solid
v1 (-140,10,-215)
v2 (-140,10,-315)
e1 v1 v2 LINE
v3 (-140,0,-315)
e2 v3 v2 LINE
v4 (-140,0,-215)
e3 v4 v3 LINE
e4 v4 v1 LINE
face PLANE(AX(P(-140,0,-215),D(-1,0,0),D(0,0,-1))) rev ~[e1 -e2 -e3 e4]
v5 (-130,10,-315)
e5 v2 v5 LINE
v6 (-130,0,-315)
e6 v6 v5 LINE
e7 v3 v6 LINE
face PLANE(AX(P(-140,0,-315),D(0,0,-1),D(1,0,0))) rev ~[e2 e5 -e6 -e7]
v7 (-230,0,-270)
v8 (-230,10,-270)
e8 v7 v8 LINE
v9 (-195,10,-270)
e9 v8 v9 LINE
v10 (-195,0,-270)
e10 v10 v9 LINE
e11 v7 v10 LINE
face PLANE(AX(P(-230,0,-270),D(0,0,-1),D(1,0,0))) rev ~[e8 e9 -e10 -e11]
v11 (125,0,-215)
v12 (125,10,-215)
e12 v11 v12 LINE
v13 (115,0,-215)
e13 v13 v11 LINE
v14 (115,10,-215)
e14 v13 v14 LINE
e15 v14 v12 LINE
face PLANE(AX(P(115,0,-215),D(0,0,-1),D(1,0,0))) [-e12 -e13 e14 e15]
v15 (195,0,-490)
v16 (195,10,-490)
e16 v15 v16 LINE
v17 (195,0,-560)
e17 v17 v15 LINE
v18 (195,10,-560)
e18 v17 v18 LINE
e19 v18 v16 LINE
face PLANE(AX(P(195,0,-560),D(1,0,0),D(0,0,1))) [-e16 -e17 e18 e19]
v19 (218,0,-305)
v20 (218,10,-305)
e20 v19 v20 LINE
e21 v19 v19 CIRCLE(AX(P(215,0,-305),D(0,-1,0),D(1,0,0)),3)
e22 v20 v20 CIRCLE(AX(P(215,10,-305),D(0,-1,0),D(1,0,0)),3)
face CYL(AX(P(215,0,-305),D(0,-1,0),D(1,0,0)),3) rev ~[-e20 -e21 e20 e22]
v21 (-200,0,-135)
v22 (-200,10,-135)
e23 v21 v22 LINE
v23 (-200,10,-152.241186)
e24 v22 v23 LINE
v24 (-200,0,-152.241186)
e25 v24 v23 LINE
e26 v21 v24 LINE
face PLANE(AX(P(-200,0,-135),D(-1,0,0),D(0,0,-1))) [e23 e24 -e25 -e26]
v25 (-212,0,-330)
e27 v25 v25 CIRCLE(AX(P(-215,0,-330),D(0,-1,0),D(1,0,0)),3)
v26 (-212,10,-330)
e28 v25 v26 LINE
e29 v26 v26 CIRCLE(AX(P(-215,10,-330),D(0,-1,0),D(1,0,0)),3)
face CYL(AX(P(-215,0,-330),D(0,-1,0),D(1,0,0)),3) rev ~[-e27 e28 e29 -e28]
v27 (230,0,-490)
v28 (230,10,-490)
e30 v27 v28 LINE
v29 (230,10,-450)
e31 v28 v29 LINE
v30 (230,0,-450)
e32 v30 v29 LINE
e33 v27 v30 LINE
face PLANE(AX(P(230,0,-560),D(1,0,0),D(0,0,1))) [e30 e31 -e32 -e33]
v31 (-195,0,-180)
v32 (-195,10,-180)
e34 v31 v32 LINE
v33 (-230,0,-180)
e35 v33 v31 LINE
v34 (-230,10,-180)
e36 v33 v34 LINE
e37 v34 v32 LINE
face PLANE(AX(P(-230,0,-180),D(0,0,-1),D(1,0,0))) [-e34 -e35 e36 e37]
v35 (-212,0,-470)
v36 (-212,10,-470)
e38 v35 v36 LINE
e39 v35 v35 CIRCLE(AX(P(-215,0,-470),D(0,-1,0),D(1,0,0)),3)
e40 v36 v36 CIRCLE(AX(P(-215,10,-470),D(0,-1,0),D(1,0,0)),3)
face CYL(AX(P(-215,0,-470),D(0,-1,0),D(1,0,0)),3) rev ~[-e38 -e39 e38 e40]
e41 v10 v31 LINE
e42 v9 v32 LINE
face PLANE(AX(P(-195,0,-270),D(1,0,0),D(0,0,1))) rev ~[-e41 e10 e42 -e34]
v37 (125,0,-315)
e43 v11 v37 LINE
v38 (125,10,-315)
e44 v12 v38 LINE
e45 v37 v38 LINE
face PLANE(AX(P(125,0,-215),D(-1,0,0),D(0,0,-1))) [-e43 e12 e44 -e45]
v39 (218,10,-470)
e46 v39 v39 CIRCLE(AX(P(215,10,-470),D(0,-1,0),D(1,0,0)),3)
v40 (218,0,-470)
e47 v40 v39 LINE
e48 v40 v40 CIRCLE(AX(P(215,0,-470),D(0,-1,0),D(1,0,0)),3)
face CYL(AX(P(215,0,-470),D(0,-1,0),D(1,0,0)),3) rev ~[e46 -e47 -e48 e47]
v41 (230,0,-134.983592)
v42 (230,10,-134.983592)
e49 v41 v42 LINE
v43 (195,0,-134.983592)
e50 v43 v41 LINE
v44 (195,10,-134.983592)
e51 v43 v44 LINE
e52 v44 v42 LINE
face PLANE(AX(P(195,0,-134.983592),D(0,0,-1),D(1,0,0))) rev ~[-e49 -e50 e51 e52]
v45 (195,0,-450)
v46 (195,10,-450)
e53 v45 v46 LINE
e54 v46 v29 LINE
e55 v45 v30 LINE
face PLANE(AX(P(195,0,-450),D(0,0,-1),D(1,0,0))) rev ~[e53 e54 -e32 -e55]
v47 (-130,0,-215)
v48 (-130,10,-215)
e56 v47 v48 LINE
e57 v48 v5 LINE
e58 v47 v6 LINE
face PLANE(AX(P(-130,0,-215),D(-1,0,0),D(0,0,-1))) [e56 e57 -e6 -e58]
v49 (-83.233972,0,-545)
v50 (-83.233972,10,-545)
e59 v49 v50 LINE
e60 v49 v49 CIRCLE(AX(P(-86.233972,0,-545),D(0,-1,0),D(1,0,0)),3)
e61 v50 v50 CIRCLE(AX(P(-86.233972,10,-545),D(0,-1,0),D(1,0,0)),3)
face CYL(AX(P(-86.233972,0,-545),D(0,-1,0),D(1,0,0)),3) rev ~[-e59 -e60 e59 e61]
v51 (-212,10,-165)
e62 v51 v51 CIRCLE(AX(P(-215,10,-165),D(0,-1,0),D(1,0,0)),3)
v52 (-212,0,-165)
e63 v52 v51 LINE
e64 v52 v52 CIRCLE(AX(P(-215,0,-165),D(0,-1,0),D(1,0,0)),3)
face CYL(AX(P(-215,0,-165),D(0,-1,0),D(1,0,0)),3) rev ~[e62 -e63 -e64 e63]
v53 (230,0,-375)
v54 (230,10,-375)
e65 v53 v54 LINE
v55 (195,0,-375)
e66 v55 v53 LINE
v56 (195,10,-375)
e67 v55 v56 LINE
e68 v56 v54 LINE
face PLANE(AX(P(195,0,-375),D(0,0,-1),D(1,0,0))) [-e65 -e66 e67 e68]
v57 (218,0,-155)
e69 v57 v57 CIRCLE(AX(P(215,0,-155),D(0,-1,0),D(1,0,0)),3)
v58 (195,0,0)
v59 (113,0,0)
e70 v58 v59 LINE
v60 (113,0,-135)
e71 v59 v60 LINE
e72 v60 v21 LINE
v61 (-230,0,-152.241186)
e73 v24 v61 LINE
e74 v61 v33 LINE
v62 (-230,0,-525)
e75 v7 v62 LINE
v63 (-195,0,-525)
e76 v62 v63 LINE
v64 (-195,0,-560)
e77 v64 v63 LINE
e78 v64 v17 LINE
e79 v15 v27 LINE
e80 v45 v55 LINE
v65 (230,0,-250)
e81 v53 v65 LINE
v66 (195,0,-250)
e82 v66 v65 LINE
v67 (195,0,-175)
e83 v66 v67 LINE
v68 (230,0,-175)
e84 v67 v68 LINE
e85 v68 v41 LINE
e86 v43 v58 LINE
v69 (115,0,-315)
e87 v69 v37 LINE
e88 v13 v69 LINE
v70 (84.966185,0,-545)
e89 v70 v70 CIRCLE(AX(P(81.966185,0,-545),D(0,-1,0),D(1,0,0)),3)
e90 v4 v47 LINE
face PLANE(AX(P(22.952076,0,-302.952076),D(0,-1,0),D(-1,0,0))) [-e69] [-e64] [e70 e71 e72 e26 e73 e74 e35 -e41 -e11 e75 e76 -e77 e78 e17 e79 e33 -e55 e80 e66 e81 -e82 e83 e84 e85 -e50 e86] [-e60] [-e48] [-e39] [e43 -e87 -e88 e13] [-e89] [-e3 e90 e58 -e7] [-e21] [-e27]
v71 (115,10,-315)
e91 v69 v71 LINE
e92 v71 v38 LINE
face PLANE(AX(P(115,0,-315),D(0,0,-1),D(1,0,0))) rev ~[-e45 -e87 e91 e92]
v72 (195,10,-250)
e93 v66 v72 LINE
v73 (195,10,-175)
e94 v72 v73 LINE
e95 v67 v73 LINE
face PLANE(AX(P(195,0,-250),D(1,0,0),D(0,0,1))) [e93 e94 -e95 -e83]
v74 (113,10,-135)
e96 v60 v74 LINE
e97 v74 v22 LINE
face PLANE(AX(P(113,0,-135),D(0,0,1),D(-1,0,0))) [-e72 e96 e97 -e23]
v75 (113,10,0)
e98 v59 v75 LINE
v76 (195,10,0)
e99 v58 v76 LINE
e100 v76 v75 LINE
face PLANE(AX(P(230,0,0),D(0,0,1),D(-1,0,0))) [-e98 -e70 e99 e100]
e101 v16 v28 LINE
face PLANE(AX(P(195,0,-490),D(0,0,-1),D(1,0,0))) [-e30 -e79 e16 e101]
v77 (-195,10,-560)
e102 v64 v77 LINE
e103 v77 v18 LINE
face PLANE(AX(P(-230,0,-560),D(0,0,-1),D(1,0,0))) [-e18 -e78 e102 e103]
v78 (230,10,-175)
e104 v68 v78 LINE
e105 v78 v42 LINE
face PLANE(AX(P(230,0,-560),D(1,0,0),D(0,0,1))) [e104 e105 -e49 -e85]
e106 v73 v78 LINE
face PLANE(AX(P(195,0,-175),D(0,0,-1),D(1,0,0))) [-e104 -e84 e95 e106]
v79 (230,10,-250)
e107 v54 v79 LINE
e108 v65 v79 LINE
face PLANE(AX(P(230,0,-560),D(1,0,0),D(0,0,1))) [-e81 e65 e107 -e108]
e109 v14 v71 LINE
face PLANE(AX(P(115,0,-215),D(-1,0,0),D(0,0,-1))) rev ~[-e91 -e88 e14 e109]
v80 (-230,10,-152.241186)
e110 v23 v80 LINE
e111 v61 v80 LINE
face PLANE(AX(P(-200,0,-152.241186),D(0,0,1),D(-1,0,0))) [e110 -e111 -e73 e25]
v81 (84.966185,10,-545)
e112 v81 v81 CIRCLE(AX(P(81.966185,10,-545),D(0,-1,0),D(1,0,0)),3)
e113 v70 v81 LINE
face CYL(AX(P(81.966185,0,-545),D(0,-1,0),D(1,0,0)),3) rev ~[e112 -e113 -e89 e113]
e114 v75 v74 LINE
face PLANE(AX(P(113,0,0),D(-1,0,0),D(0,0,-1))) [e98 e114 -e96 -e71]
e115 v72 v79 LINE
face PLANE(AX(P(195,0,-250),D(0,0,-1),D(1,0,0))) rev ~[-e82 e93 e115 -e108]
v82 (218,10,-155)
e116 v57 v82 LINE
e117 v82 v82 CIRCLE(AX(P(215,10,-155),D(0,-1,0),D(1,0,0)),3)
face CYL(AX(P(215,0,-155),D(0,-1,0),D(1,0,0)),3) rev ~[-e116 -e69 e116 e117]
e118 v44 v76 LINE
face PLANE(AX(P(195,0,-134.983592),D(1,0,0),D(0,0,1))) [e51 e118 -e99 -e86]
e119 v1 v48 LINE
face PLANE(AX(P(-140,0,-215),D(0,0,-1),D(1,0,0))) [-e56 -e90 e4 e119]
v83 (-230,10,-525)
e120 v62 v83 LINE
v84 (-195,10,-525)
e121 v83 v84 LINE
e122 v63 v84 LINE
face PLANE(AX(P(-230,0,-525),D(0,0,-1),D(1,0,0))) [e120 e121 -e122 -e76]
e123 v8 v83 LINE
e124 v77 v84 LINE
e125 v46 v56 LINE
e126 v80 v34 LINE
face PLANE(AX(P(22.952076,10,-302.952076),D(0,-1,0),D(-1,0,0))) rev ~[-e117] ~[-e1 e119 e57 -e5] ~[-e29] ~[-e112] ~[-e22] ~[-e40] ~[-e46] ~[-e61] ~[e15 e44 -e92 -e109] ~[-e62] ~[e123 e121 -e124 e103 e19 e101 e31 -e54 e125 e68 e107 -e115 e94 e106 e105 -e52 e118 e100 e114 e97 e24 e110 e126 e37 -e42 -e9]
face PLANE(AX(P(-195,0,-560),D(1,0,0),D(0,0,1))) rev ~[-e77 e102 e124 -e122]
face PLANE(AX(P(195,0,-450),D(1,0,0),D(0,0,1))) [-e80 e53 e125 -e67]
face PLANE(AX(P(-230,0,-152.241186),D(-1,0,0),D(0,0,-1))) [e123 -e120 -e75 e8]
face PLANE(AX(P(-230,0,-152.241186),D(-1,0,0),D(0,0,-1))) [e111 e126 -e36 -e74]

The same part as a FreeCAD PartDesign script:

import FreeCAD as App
import Part
import Sketcher


def add_polygon(sketch, points):
    """Adds a closed chain of lines whose ends are joined by coincident constraints."""
    first, n = sketch.GeometryCount, len(points)
    for a, b in zip(points, points[1:] + points[:1]):
        sketch.addGeometry(Part.LineSegment(App.Vector(*a, 0), App.Vector(*b, 0)), False)
    for i in range(n):
        sketch.addConstraint(Sketcher.Constraint("Coincident", first + i, 2, first + (i + 1) % n, 1))

doc = App.newDocument("Part")
body = doc.addObject("PartDesign::Body", "Body")

sketch1 = body.newObject("Sketcher::SketchObject", "Sketch")
sketch1.AttachmentSupport = (doc.getObject("XZ_Plane"), [""])
sketch1.MapMode = "FlatFace"
add_polygon(sketch1, [(230, 0), (230, -560), (-230, -560), (-230, -152.241186), (-200, -152.241186), (-200, -135), (113, -135), (113, 0)])
add_polygon(sketch1, [(115, -215), (115, -315), (125, -315), (125, -215)])
add_polygon(sketch1, [(-140, -215), (-140, -315), (-130, -315), (-130, -215)])
sketch1.addConstraint([
    Sketcher.Constraint("Vertical", 0),
    Sketcher.Constraint("Horizontal", 1),
    Sketcher.Constraint("Vertical", 2),
    Sketcher.Constraint("Horizontal", 3),
    Sketcher.Constraint("Vertical", 4),
    Sketcher.Constraint("Horizontal", 5),
    Sketcher.Constraint("Vertical", 6),
    Sketcher.Constraint("Horizontal", 7),
    Sketcher.Constraint("Vertical", 8),
    Sketcher.Constraint("Horizontal", 9),
    Sketcher.Constraint("Vertical", 10),
    Sketcher.Constraint("Horizontal", 11),
    Sketcher.Constraint("Vertical", 12),
    Sketcher.Constraint("Horizontal", 13),
    Sketcher.Constraint("Vertical", 14),
    Sketcher.Constraint("Horizontal", 15),
    Sketcher.Constraint("PointOnObject", 6, 2, -1),
    Sketcher.Constraint("Horizontal", 9, 2, 12, 2),
    Sketcher.Constraint("Horizontal", 11, 2, 14, 2),
    Sketcher.Constraint("Equal", 11, 13),
    Sketcher.Constraint("DistanceX", 1, 2, 1, 1, 460.0),
    Sketcher.Constraint("DistanceX", 3, 1, 3, 2, 30.0),
    Sketcher.Constraint("DistanceX", 5, 1, 5, 2, 313.0),
    Sketcher.Constraint("DistanceX", 9, 1, 9, 2, 10.0),
    Sketcher.Constraint("DistanceY", 0, 2, 0, 1, 560.0),
    Sketcher.Constraint("DistanceY", 6, 1, 6, 2, 135.0),
    Sketcher.Constraint("DistanceY", 8, 2, 8, 1, 100.0),
    Sketcher.Constraint("DistanceX", -1, 1, 0, 2, 230.0),
    Sketcher.Constraint("DistanceX", -1, 1, 8, 2, 115.0),
    Sketcher.Constraint("DistanceY", 8, 2, -1, 1, 315.0),
    Sketcher.Constraint("DistanceX", 12, 2, -1, 1, 140.0),
    Sketcher.Constraint("DistanceY", 2, 1, 2, 2, 407.758814),
])
pad1 = body.newObject("PartDesign::Pad", "Pad")
pad1.Profile = sketch1
pad1.Length = 10
pad1.Reversed = True

sketch2 = body.newObject("Sketcher::SketchObject", "Sketch001")
sketch2.AttachmentSupport = (doc.getObject("XZ_Plane"), [""])
sketch2.MapMode = "FlatFace"
sketch2.addGeometry(Part.Circle(App.Vector(215, -470, 0), App.Vector(0, 0, 1), 3), False)
sketch2.addGeometry(Part.Circle(App.Vector(215, -155, 0), App.Vector(0, 0, 1), 3), False)
sketch2.addGeometry(Part.Circle(App.Vector(215, -305, 0), App.Vector(0, 0, 1), 3), False)
sketch2.addGeometry(Part.Circle(App.Vector(-215, -165, 0), App.Vector(0, 0, 1), 3), False)
sketch2.addGeometry(Part.Circle(App.Vector(-215, -470, 0), App.Vector(0, 0, 1), 3), False)
sketch2.addGeometry(Part.Circle(App.Vector(-215, -330, 0), App.Vector(0, 0, 1), 3), False)
sketch2.addGeometry(Part.Circle(App.Vector(81.966185, -545, 0), App.Vector(0, 0, 1), 3), False)
sketch2.addGeometry(Part.Circle(App.Vector(-86.233972, -545, 0), App.Vector(0, 0, 1), 3), False)
add_polygon(sketch2, [(195, -490), (195, -560), (230, -560), (230, -490)])
add_polygon(sketch2, [(-230, -525), (-230, -560), (-195, -560), (-195, -525)])
add_polygon(sketch2, [(-230, -180), (-230, -270), (-195, -270), (-195, -180)])
add_polygon(sketch2, [(195, 0), (195, -134.983592), (230, -134.983592), (230, 0)])
add_polygon(sketch2, [(195, -175), (195, -250), (230, -250), (230, -175)])
add_polygon(sketch2, [(195, -375), (195, -450), (230, -450), (230, -375)])
sketch2.addConstraint([
    Sketcher.Constraint("Vertical", 8),
    Sketcher.Constraint("Horizontal", 9),
    Sketcher.Constraint("Vertical", 10),
    Sketcher.Constraint("Horizontal", 11),
    Sketcher.Constraint("Vertical", 12),
    Sketcher.Constraint("Horizontal", 13),
    Sketcher.Constraint("Vertical", 14),
    Sketcher.Constraint("Horizontal", 15),
    Sketcher.Constraint("Vertical", 16),
    Sketcher.Constraint("Horizontal", 17),
    Sketcher.Constraint("Vertical", 18),
    Sketcher.Constraint("Horizontal", 19),
    Sketcher.Constraint("Vertical", 20),
    Sketcher.Constraint("Horizontal", 21),
    Sketcher.Constraint("Vertical", 22),
    Sketcher.Constraint("Horizontal", 23),
    Sketcher.Constraint("Vertical", 24),
    Sketcher.Constraint("Horizontal", 25),
    Sketcher.Constraint("Vertical", 26),
    Sketcher.Constraint("Horizontal", 27),
    Sketcher.Constraint("Vertical", 28),
    Sketcher.Constraint("Horizontal", 29),
    Sketcher.Constraint("Vertical", 30),
    Sketcher.Constraint("Horizontal", 31),
    Sketcher.Constraint("Equal", 0, 1),
    Sketcher.Constraint("Equal", 1, 2),
    Sketcher.Constraint("Equal", 2, 3),
    Sketcher.Constraint("Equal", 3, 4),
    Sketcher.Constraint("Equal", 4, 5),
    Sketcher.Constraint("Equal", 5, 6),
    Sketcher.Constraint("Equal", 6, 7),
    Sketcher.Constraint("Symmetric", 0, 3, 4, 3, -2),
    Sketcher.Constraint("Symmetric", 9, 2, 12, 2, -2),
    Sketcher.Constraint("PointOnObject", 22, 2, -1),
    Sketcher.Constraint("Horizontal", 6, 3, 7, 3),
    Sketcher.Constraint("Vertical", 0, 3, 1, 3),
    Sketcher.Constraint("Vertical", 1, 3, 2, 3),
    Sketcher.Constraint("Vertical", 3, 3, 4, 3),
    Sketcher.Constraint("Vertical", 4, 3, 5, 3),
    Sketcher.Constraint("Vertical", 15, 2, 16, 2),
    Sketcher.Constraint("Vertical", 14, 2, 17, 2),
    Sketcher.Constraint("Vertical", 11, 2, 20, 2),
    Sketcher.Constraint("Vertical", 10, 2, 21, 2),
    Sketcher.Constraint("Vertical", 23, 2, 24, 2),
    Sketcher.Constraint("Vertical", 22, 2, 25, 2),
    Sketcher.Constraint("Vertical", 27, 2, 28, 2),
    Sketcher.Constraint("Vertical", 26, 2, 29, 2),
    Sketcher.Constraint("Equal", 11, 13),
    Sketcher.Constraint("Equal", 31, 12),
    Sketcher.Constraint("Equal", 26, 28),
    Sketcher.Constraint("Diameter", 0, 6.0),
    Sketcher.Constraint("DistanceX", 9, 1, 9, 2, 35.0),
    Sketcher.Constraint("DistanceY", 8, 2, 8, 1, 70.0),
    Sketcher.Constraint("DistanceY", 16, 2, 16, 1, 90.0),
    Sketcher.Constraint("DistanceY", 24, 2, 24, 1, 75.0),
    Sketcher.Constraint("DistanceX", -1, 1, 0, 3, 215.0),
    Sketcher.Constraint("DistanceY", 0, 3, -1, 1, 470.0),
    Sketcher.Constraint("DistanceY", 1, 3, -1, 1, 155.0),
    Sketcher.Constraint("DistanceY", 2, 3, -1, 1, 305.0),
    Sketcher.Constraint("DistanceY", 3, 3, -1, 1, 165.0),
    Sketcher.Constraint("DistanceY", 5, 3, -1, 1, 330.0),
    Sketcher.Constraint("DistanceY", 6, 3, -1, 1, 545.0),
    Sketcher.Constraint("DistanceX", -1, 1, 8, 2, 195.0),
    Sketcher.Constraint("DistanceY", 8, 2, -1, 1, 560.0),
    Sketcher.Constraint("DistanceY", 16, 2, -1, 1, 270.0),
    Sketcher.Constraint("DistanceY", 24, 2, -1, 1, 250.0),
    Sketcher.Constraint("DistanceY", 28, 2, -1, 1, 450.0),
    Sketcher.Constraint("DistanceY", 20, 2, 20, 1, 134.983592),
    Sketcher.Constraint("DistanceX", 7, 3, -1, 1, 86.233972),
    Sketcher.Constraint("DistanceX", -1, 1, 6, 3, 81.966185),
])
pocket1 = body.newObject("PartDesign::Pocket", "Pocket")
pocket1.Profile = sketch2
pocket1.Length = 10

doc.recompute()
